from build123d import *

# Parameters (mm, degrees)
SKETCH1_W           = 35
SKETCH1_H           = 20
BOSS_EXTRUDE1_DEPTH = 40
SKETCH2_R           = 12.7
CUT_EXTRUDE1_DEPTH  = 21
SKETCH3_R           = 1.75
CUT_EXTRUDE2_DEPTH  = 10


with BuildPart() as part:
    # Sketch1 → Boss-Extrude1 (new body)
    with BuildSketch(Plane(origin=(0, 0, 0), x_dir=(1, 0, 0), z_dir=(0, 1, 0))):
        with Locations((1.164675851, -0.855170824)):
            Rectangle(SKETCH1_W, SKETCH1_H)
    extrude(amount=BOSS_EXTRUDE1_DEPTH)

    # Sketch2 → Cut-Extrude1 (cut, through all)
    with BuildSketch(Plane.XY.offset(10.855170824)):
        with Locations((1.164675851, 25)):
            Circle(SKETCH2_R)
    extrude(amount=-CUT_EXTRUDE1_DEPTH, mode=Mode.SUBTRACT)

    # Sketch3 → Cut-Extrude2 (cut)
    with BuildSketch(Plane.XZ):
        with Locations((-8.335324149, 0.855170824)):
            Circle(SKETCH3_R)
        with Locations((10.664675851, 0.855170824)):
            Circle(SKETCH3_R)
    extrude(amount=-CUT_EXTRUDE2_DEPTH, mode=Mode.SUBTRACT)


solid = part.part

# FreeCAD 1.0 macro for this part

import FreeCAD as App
import Part
import Sketcher

V = App.Vector
Q = App.Units.Quantity

doc = App.newDocument("Part")
body = doc.addObject("PartDesign::Body", "Body")

# Sketch on XZ plane
sketch1 = body.newObject("Sketcher::SketchObject", "Sketch")
sketch1.AttachmentSupport = (doc.getObject("XZ_Plane"), [""])
sketch1.MapMode = "FlatFace"
sketch1.addGeometry([
    Part.LineSegment(V(-16, -9, 0), V(-16, 11, 0)),
    Part.LineSegment(V(-16, 11, 0), V(19, 11, 0)),
    Part.LineSegment(V(19, 11, 0), V(19, -9, 0)),
    Part.LineSegment(V(19, -9, 0), V(-16, -9, 0)),
], False)
sketch1.addConstraint([
    Sketcher.Constraint("Coincident", 0, 2, 1, 1),
    Sketcher.Constraint("Coincident", 1, 2, 2, 1),
    Sketcher.Constraint("Coincident", 2, 2, 3, 1),
    Sketcher.Constraint("Coincident", 3, 2, 0, 1),
    Sketcher.Constraint("Vertical", 0),
    Sketcher.Constraint("Horizontal", 1),
    Sketcher.Constraint("Vertical", 2),
    Sketcher.Constraint("Horizontal", 3),
    Sketcher.Constraint("DistanceX", 1, 1, 1, 2, Q("35 mm")),
    Sketcher.Constraint("DistanceY", 0, 1, 0, 2, Q("20 mm")),
    Sketcher.Constraint("DistanceY", -1, 1, 0, 2, Q("10.855171 mm")),
    Sketcher.Constraint("DistanceX", 0, 2, -1, 1, Q("16.335324 mm")),
])
pad1 = body.newObject("PartDesign::Pad", "Pad")
pad1.Profile = sketch1
pad1.Length = 40
pad1.Reversed = True

# Sketch on XY plane
sketch2 = body.newObject("Sketcher::SketchObject", "Sketch001")
sketch2.AttachmentSupport = (doc.getObject("XY_Plane"), [""])
sketch2.MapMode = "FlatFace"
sketch2.AttachmentOffset = App.Placement(V(0, 0, 10.855171), App.Rotation())
sketch2.addGeometry(Part.Circle(V(1, 25, 0), V(0, 0, 1), 13), False)
sketch2.addConstraint([
    Sketcher.Constraint("Diameter", 0, Q("25.4 mm")),
    Sketcher.Constraint("DistanceY", -1, 1, 0, 3, Q("25 mm")),
    Sketcher.Constraint("DistanceX", -1, 1, 0, 3, Q("1.164676 mm")),
])
pocket1 = body.newObject("PartDesign::Pocket", "Pocket")
pocket1.Profile = sketch2
pocket1.Type = "ThroughAll"

# Sketch on XZ plane
sketch3 = body.newObject("Sketcher::SketchObject", "Sketch002")
sketch3.AttachmentSupport = (doc.getObject("XZ_Plane"), [""])
sketch3.MapMode = "FlatFace"
sketch3.addGeometry([
    Part.Circle(V(-8.3, 0.9, 0), V(0, 0, 1), 1.8),
    Part.Circle(V(10.7, 0.9, 0), V(0, 0, 1), 1.8),
], False)
sketch3.addConstraint([
    Sketcher.Constraint("Equal", 0, 1),
    Sketcher.Constraint("Horizontal", 0, 3, 1, 3),
    Sketcher.Constraint("Diameter", 0, Q("3.5 mm")),
    Sketcher.Constraint("DistanceX", 0, 3, 1, 3, Q("19 mm")),
    Sketcher.Constraint("DistanceY", -1, 1, 0, 3, Q("0.855171 mm")),
    Sketcher.Constraint("DistanceX", 0, 3, -1, 1, Q("8.335324 mm")),
])
pocket2 = body.newObject("PartDesign::Pocket", "Pocket001")
pocket2.Profile = sketch3
pocket2.Length = 10

doc.recompute()
